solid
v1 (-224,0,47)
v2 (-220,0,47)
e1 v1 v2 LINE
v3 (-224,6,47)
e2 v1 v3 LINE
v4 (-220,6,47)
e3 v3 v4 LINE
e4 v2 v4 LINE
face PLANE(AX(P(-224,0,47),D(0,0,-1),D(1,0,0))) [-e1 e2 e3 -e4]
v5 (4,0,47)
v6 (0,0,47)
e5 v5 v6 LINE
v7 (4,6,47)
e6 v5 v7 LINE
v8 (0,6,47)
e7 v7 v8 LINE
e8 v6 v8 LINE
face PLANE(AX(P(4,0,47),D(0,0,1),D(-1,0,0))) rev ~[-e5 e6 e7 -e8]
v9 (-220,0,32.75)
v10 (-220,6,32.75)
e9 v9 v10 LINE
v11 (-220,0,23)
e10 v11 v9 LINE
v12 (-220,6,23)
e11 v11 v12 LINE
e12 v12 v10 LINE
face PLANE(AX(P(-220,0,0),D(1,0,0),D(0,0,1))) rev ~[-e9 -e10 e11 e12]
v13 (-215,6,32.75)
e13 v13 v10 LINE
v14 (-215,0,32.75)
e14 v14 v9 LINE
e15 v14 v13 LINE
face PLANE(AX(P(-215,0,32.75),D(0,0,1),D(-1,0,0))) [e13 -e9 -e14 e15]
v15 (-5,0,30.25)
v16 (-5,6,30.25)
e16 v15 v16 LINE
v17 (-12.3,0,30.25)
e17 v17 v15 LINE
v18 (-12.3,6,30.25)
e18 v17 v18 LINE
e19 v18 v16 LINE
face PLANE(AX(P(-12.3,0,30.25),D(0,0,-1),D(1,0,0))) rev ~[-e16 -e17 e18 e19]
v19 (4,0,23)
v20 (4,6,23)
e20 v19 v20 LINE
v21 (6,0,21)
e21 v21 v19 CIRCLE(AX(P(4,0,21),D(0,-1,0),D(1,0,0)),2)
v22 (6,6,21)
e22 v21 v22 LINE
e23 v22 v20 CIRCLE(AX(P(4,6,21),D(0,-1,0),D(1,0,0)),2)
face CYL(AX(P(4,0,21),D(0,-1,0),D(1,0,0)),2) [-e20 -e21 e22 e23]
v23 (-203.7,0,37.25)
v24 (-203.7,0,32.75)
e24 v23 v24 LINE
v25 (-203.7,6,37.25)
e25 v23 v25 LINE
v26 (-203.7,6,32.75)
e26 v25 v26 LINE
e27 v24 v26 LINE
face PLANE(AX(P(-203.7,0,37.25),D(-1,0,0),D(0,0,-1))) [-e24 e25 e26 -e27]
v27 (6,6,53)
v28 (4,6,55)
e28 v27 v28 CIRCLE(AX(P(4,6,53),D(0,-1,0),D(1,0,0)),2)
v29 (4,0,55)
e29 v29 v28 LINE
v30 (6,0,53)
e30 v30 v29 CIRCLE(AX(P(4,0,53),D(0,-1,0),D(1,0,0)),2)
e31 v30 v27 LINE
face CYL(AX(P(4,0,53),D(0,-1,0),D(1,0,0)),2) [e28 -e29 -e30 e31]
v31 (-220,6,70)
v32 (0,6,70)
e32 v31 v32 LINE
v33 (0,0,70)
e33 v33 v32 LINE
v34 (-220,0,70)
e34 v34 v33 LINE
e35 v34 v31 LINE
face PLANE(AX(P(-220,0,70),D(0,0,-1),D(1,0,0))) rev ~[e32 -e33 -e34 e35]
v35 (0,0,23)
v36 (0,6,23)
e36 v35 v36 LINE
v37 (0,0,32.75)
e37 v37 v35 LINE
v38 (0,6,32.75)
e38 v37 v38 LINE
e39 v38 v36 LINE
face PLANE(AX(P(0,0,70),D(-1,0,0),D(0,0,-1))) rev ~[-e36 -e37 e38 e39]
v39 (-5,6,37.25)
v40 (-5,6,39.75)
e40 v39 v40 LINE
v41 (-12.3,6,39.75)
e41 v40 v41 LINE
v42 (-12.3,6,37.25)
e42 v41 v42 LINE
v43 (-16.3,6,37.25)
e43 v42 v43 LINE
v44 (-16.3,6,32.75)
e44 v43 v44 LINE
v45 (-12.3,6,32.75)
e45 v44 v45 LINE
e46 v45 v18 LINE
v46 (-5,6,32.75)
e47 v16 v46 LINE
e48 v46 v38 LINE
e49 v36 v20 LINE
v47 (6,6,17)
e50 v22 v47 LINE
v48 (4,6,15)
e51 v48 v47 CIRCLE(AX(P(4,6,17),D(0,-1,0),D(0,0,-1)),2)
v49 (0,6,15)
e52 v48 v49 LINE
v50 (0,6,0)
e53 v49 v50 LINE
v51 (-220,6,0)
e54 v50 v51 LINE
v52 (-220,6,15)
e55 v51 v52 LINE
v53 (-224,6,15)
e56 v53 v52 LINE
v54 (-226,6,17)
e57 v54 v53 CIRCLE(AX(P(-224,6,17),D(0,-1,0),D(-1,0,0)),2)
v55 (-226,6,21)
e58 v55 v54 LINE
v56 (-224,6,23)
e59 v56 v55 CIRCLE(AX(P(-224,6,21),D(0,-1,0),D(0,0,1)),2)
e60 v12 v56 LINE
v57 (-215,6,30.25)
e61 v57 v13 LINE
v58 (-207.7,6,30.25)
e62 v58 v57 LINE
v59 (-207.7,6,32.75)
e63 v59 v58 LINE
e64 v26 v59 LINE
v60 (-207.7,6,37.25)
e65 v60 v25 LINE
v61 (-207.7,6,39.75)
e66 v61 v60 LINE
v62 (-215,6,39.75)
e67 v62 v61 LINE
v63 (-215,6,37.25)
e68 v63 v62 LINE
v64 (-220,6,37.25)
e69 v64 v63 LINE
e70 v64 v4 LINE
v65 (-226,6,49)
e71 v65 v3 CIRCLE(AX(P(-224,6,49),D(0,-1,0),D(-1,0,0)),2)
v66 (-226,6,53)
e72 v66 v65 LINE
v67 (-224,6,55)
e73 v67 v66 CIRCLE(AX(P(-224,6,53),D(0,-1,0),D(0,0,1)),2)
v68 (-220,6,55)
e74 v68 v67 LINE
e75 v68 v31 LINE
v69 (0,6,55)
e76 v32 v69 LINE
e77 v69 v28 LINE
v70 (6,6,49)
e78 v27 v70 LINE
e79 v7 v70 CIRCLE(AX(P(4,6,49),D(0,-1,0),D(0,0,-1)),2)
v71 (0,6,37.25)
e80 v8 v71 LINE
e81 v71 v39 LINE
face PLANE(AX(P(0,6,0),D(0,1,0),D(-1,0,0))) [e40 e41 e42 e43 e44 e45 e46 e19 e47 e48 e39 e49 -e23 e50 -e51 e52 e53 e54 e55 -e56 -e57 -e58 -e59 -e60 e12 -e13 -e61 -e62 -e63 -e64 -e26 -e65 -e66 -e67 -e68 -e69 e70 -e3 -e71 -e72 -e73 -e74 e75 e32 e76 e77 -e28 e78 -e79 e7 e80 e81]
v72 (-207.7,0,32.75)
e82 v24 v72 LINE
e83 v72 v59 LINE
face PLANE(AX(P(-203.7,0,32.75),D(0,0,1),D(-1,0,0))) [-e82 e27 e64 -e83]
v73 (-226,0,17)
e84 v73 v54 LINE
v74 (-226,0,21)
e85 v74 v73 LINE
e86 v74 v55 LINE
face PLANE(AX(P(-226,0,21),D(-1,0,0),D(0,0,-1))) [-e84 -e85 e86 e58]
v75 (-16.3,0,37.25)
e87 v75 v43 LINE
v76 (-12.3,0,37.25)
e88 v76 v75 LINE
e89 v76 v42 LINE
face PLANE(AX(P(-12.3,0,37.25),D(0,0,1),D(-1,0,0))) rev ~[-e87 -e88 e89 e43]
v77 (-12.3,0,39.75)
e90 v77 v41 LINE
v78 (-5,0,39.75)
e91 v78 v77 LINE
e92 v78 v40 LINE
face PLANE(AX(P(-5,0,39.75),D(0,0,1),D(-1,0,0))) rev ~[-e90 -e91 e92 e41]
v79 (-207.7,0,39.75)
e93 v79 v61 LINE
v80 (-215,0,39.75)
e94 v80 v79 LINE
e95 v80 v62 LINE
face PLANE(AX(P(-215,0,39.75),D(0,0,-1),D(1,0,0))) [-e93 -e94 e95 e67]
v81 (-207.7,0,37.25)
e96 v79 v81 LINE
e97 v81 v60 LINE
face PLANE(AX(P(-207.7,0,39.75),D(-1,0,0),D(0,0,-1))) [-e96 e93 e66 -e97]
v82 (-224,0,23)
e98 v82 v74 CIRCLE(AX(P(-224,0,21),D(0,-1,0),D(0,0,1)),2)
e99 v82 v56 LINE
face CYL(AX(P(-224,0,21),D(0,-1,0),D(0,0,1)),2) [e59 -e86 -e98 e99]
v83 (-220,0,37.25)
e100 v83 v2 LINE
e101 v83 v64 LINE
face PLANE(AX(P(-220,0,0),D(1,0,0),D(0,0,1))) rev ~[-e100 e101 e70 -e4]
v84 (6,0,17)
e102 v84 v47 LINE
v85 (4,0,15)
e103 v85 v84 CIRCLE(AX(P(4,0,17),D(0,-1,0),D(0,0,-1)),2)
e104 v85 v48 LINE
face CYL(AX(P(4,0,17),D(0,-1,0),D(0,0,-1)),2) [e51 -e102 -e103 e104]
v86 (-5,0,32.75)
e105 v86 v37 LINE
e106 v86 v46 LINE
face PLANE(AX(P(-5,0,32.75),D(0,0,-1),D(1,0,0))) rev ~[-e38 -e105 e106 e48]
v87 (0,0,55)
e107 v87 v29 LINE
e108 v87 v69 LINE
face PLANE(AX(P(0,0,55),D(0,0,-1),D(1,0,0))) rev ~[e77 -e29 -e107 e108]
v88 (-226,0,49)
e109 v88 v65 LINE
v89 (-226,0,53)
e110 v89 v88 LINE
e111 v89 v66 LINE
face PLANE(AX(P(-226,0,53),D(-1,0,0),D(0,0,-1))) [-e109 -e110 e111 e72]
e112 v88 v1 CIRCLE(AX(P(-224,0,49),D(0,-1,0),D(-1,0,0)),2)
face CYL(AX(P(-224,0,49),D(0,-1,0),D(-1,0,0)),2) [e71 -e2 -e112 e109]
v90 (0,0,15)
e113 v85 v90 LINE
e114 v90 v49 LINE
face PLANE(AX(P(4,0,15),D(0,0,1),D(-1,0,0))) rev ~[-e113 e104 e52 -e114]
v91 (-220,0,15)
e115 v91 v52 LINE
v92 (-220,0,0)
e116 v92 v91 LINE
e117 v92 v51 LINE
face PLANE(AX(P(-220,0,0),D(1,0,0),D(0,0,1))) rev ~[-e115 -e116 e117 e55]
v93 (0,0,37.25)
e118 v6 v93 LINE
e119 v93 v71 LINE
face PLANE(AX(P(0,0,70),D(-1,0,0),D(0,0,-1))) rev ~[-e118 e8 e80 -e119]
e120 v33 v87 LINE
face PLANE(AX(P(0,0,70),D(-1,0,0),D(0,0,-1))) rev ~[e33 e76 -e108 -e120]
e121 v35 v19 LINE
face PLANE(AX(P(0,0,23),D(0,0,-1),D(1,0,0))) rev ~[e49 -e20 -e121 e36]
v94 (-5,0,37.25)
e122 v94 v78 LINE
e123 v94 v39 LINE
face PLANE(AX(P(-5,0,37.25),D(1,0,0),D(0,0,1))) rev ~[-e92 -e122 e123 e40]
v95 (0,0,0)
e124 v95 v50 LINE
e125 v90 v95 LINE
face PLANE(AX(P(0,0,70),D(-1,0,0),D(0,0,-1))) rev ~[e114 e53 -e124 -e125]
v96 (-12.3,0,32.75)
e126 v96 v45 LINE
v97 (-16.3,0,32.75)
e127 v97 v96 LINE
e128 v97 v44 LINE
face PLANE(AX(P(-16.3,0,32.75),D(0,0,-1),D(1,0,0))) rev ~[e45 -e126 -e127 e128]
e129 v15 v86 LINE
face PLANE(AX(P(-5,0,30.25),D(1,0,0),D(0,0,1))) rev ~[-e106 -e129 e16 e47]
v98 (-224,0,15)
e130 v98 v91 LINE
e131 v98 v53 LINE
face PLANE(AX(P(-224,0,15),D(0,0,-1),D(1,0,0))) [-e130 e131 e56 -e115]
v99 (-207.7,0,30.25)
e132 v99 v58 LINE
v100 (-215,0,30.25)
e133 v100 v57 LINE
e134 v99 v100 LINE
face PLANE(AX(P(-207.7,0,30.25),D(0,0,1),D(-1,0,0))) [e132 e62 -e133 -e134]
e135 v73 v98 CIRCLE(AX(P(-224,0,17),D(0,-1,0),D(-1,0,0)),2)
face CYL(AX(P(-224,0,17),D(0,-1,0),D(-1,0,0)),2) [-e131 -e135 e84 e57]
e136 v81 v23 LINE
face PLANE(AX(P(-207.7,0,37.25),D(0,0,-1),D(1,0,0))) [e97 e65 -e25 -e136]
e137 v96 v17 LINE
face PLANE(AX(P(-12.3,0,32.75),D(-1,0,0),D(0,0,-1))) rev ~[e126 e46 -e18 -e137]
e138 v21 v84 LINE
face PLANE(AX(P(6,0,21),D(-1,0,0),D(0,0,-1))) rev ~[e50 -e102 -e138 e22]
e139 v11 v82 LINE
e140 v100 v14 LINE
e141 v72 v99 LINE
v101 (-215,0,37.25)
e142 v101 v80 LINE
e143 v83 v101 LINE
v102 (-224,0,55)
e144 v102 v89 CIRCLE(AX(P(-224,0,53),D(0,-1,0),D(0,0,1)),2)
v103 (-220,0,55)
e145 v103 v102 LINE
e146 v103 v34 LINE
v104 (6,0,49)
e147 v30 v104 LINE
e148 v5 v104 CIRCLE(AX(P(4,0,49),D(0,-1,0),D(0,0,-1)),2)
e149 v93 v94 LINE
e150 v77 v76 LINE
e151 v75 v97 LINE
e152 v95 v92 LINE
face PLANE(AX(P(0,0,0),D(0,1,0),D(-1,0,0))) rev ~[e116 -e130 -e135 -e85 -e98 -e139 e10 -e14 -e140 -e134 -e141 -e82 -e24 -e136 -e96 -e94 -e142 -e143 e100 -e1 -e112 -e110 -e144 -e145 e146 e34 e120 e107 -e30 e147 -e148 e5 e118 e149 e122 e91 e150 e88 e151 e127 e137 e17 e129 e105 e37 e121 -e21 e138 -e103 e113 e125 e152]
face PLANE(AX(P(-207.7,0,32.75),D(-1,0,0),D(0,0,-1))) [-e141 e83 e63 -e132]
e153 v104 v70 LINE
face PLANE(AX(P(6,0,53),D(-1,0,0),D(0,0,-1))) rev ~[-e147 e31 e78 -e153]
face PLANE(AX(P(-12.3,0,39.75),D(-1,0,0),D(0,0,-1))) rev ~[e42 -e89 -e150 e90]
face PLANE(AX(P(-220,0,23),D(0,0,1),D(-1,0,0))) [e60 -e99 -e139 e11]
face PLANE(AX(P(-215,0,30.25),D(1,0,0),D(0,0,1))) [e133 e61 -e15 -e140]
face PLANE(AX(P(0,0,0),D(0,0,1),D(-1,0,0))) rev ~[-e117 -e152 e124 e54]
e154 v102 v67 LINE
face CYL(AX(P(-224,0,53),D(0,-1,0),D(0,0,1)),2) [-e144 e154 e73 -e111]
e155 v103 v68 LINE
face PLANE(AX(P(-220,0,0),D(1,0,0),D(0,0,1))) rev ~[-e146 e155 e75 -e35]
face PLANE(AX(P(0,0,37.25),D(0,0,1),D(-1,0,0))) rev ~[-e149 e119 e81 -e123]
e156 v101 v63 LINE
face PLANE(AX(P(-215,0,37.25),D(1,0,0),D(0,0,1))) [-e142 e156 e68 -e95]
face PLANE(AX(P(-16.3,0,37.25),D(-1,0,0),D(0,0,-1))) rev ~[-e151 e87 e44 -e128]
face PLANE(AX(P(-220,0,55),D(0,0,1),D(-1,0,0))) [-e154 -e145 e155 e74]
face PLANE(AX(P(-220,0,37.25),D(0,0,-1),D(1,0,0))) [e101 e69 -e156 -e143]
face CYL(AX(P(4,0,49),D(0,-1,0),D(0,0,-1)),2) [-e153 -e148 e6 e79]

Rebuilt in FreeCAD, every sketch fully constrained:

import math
import FreeCAD as App
import Part
import Sketcher

V = App.Vector


def add_polygon(sketch, points):
    """Adds a closed chain of lines whose ends are joined by coincident constraints."""
    first, n = sketch.GeometryCount, len(points)
    for a, b in zip(points, points[1:] + points[:1]):
        sketch.addGeometry(Part.LineSegment(App.Vector(*a, 0), App.Vector(*b, 0)), False)
    for i in range(n):
        sketch.addConstraint(Sketcher.Constraint("Coincident", first + i, 2, first + (i + 1) % n, 1))

doc = App.newDocument("Part")
body = doc.addObject("PartDesign::Body", "Body")

sketch1 = body.newObject("Sketcher::SketchObject", "Sketch")
sketch1.AttachmentSupport = (doc.getObject("XZ_Plane"), [""])
sketch1.MapMode = "FlatFace"
add_polygon(sketch1, [(0, 70), (0, 0), (-220, 0), (-220, 70)])
sketch1.addConstraint([
    Sketcher.Constraint("Vertical", 0),
    Sketcher.Constraint("Horizontal", 1),
    Sketcher.Constraint("Vertical", 2),
    Sketcher.Constraint("Horizontal", 3),
    Sketcher.Constraint("Coincident", 0, 2, -1, 1),
    Sketcher.Constraint("DistanceX", 1, 2, 1, 1, 220.0),
    Sketcher.Constraint("DistanceY", 0, 2, 0, 1, 70.0),
])
pad1 = body.newObject("PartDesign::Pad", "Pad")
pad1.Profile = sketch1
pad1.Length = 6
pad1.Reversed = True

sketch2 = body.newObject("Sketcher::SketchObject", "Sketch001")
sketch2.AttachmentSupport = (doc.getObject("XZ_Plane"), [""])
sketch2.MapMode = "FlatFace"
sketch2.addGeometry([
    Part.LineSegment(V(0, 23, 0), V(0, 15, 0)),
    Part.LineSegment(V(0, 15, 0), V(4, 15, 0)),
    Part.ArcOfCircle(Part.Circle(V(4, 17, 0), V(0, 0, 1), 2), math.radians(-90), math.radians(0)),
    Part.LineSegment(V(6, 17, 0), V(6, 21, 0)),
    Part.ArcOfCircle(Part.Circle(V(4, 21, 0), V(0, 0, 1), 2), math.radians(0), math.radians(90)),
    Part.LineSegment(V(4, 23, 0), V(0, 23, 0)),
    Part.LineSegment(V(-224, 15, 0), V(-220, 15, 0)),
    Part.LineSegment(V(-220, 15, 0), V(-220, 23, 0)),
    Part.LineSegment(V(-220, 23, 0), V(-224, 23, 0)),
    Part.ArcOfCircle(Part.Circle(V(-224, 21, 0), V(0, 0, 1), 2), math.radians(90), math.radians(180)),
    Part.LineSegment(V(-226, 21, 0), V(-226, 17, 0)),
    Part.ArcOfCircle(Part.Circle(V(-224, 17, 0), V(0, 0, 1), 2), math.radians(180), math.radians(270)),
    Part.LineSegment(V(0, 55, 0), V(0, 47, 0)),
    Part.LineSegment(V(0, 47, 0), V(4, 47, 0)),
    Part.ArcOfCircle(Part.Circle(V(4, 49, 0), V(0, 0, 1), 2), math.radians(-90), math.radians(0)),
    Part.LineSegment(V(6, 49, 0), V(6, 53, 0)),
    Part.ArcOfCircle(Part.Circle(V(4, 53, 0), V(0, 0, 1), 2), math.radians(0), math.radians(90)),
    Part.LineSegment(V(4, 55, 0), V(0, 55, 0)),
    Part.LineSegment(V(-224, 47, 0), V(-220, 47, 0)),
    Part.LineSegment(V(-220, 47, 0), V(-220, 55, 0)),
    Part.LineSegment(V(-220, 55, 0), V(-224, 55, 0)),
    Part.ArcOfCircle(Part.Circle(V(-224, 53, 0), V(0, 0, 1), 2), math.radians(90), math.radians(180)),
    Part.LineSegment(V(-226, 53, 0), V(-226, 49, 0)),
    Part.ArcOfCircle(Part.Circle(V(-224, 49, 0), V(0, 0, 1), 2), math.radians(180), math.radians(270)),
], False)
sketch2.addConstraint([
    Sketcher.Constraint("Coincident", 0, 2, 1, 1),
    Sketcher.Constraint("Tangent", 1, 2, 2, 1),
    Sketcher.Constraint("Tangent", 2, 2, 3, 1),
    Sketcher.Constraint("Tangent", 3, 2, 4, 1),
    Sketcher.Constraint("Tangent", 4, 2, 5, 1),
    Sketcher.Constraint("Coincident", 5, 2, 0, 1),
    Sketcher.Constraint("Coincident", 6, 2, 7, 1),
    Sketcher.Constraint("Coincident", 7, 2, 8, 1),
    Sketcher.Constraint("Tangent", 8, 2, 9, 1),
    Sketcher.Constraint("Tangent", 9, 2, 10, 1),
    Sketcher.Constraint("Tangent", 10, 2, 11, 1),
    Sketcher.Constraint("Tangent", 11, 2, 6, 1),
    Sketcher.Constraint("Coincident", 12, 2, 13, 1),
    Sketcher.Constraint("Tangent", 13, 2, 14, 1),
    Sketcher.Constraint("Tangent", 14, 2, 15, 1),
    Sketcher.Constraint("Tangent", 15, 2, 16, 1),
    Sketcher.Constraint("Tangent", 16, 2, 17, 1),
    Sketcher.Constraint("Coincident", 17, 2, 12, 1),
    Sketcher.Constraint("Coincident", 18, 2, 19, 1),
    Sketcher.Constraint("Coincident", 19, 2, 20, 1),
    Sketcher.Constraint("Tangent", 20, 2, 21, 1),
    Sketcher.Constraint("Tangent", 21, 2, 22, 1),
    Sketcher.Constraint("Tangent", 22, 2, 23, 1),
    Sketcher.Constraint("Tangent", 23, 2, 18, 1),
    Sketcher.Constraint("Vertical", 0),
    Sketcher.Constraint("Horizontal", 1),
    Sketcher.Constraint("Vertical", 3),
    Sketcher.Constraint("Horizontal", 5),
    Sketcher.Constraint("Horizontal", 6),
    Sketcher.Constraint("Vertical", 7),
    Sketcher.Constraint("Horizontal", 8),
    Sketcher.Constraint("Vertical", 10),
    Sketcher.Constraint("Vertical", 12),
    Sketcher.Constraint("Horizontal", 13),
    Sketcher.Constraint("Vertical", 15),
    Sketcher.Constraint("Horizontal", 17),
    Sketcher.Constraint("Horizontal", 18),
    Sketcher.Constraint("Vertical", 19),
    Sketcher.Constraint("Horizontal", 20),
    Sketcher.Constraint("Vertical", 22),
    Sketcher.Constraint("Equal", 2, 4),
    Sketcher.Constraint("Equal", 4, 9),
    Sketcher.Constraint("Equal", 9, 11),
    Sketcher.Constraint("Equal", 11, 14),
    Sketcher.Constraint("Equal", 14, 16),
    Sketcher.Constraint("Equal", 16, 21),
    Sketcher.Constraint("Equal", 21, 23),
    Sketcher.Constraint("PointOnObject", 0, 2, -2),
    Sketcher.Constraint("PointOnObject", 12, 2, -2),
    Sketcher.Constraint("Horizontal", 4, 3, 9, 3),
    Sketcher.Constraint("Horizontal", 2, 3, 11, 3),
    Sketcher.Constraint("Horizontal", 16, 3, 21, 3),
    Sketcher.Constraint("Horizontal", 14, 3, 23, 3),
    Sketcher.Constraint("Vertical", 4, 3, 14, 3),
    Sketcher.Constraint("Vertical", 11, 3, 21, 3),
    Sketcher.Constraint("Vertical", 7, 2, 18, 2),
    Sketcher.Constraint("Equal", 5, 6),
    Sketcher.Constraint("Equal", 20, 3),
    Sketcher.Constraint("Equal", 7, 12),
    Sketcher.Constraint("Radius", 2, 2.0),
    Sketcher.Constraint("DistanceY", 0, 2, 0, 1, 8.0),
    Sketcher.Constraint("DistanceY", -1, 1, 0, 2, 15.0),
    Sketcher.Constraint("DistanceX", 9, 3, -1, 1, 224.0),
    Sketcher.Constraint("DistanceY", -1, 1, 14, 3, 49.0),
])
pad2 = body.newObject("PartDesign::Pad", "Pad001")
pad2.Profile = sketch2
pad2.Length = 6
pad2.Reversed = True

sketch3 = body.newObject("Sketcher::SketchObject", "Sketch002")
sketch3.AttachmentSupport = (doc.getObject("XZ_Plane"), [""])
sketch3.MapMode = "FlatFace"
add_polygon(sketch3, [(-220, 37.2), (-220, 32.8), (-215, 32.8), (-215, 30.2), (-207.7, 30.2), (-207.7, 32.8), (-203.7, 32.8), (-203.7, 37.2), (-207.7, 37.2), (-207.7, 39.8), (-215, 39.8), (-215, 37.2)])
add_polygon(sketch3, [(-12.3, 37.2), (-16.3, 37.2), (-16.3, 32.8), (-12.3, 32.8), (-12.3, 30.2), (-5, 30.2), (-5, 32.8), (0, 32.8), (0, 37.2), (-5, 37.2), (-5, 39.8), (-12.3, 39.8)])
sketch3.addConstraint([
    Sketcher.Constraint("Vertical", 0),
    Sketcher.Constraint("Horizontal", 1),
    Sketcher.Constraint("Vertical", 2),
    Sketcher.Constraint("Horizontal", 3),
    Sketcher.Constraint("Vertical", 4),
    Sketcher.Constraint("Horizontal", 5),
    Sketcher.Constraint("Vertical", 6),
    Sketcher.Constraint("Horizontal", 7),
    Sketcher.Constraint("Vertical", 8),
    Sketcher.Constraint("Horizontal", 9),
    Sketcher.Constraint("Vertical", 10),
    Sketcher.Constraint("Horizontal", 11),
    Sketcher.Constraint("Horizontal", 12),
    Sketcher.Constraint("Vertical", 13),
    Sketcher.Constraint("Horizontal", 14),
    Sketcher.Constraint("Vertical", 15),
    Sketcher.Constraint("Horizontal", 16),
    Sketcher.Constraint("Vertical", 17),
    Sketcher.Constraint("Horizontal", 18),
    Sketcher.Constraint("Vertical", 19),
    Sketcher.Constraint("Horizontal", 20),
    Sketcher.Constraint("Vertical", 21),
    Sketcher.Constraint("Horizontal", 22),
    Sketcher.Constraint("Vertical", 23),
    Sketcher.Constraint("PointOnObject", 18, 2, -2),
    Sketcher.Constraint("Horizontal", 1, 2, 4, 2),
    Sketcher.Constraint("Horizontal", 7, 2, 10, 2),
    Sketcher.Constraint("Horizontal", 11, 2, 12, 2),
    Sketcher.Constraint("Horizontal", 5, 2, 13, 2),
    Sketcher.Constraint("Horizontal", 3, 2, 15, 2),
    Sketcher.Constraint("Horizontal", 14, 2, 17, 2),
    Sketcher.Constraint("Horizontal", 12, 2, 19, 2),
    Sketcher.Constraint("Horizontal", 9, 2, 21, 2),
    Sketcher.Constraint("Vertical", 4, 2, 7, 2),
    Sketcher.Constraint("Vertical", 2, 2, 9, 2),
    Sketcher.Constraint("Vertical", 17, 2, 20, 2),
    Sketcher.Constraint("Vertical", 15, 2, 22, 2),
    Sketcher.Constraint("Equal", 7, 12),
    Sketcher.Constraint("Equal", 9, 16),
    Sketcher.Constraint("Equal", 11, 18),
    Sketcher.Constraint("Equal", 4, 8),
    Sketcher.Constraint("DistanceX", 1, 1, 1, 2, 5.0),
    Sketcher.Constraint("DistanceX", 5, 1, 5, 2, 4.0),
    Sketcher.Constraint("DistanceX", 3, 1, 3, 2, 7.3),
    Sketcher.Constraint("DistanceY", 0, 2, 0, 1, 4.5),
    Sketcher.Constraint("DistanceY", 2, 2, 2, 1, 2.5),
    Sketcher.Constraint("DistanceX", 0, 2, -1, 1, 220.0),
    Sketcher.Constraint("DistanceY", -1, 1, 0, 2, 32.75),
])
pocket1 = body.newObject("PartDesign::Pocket", "Pocket")
pocket1.Profile = sketch3
pocket1.Length = 6

doc.recompute()
